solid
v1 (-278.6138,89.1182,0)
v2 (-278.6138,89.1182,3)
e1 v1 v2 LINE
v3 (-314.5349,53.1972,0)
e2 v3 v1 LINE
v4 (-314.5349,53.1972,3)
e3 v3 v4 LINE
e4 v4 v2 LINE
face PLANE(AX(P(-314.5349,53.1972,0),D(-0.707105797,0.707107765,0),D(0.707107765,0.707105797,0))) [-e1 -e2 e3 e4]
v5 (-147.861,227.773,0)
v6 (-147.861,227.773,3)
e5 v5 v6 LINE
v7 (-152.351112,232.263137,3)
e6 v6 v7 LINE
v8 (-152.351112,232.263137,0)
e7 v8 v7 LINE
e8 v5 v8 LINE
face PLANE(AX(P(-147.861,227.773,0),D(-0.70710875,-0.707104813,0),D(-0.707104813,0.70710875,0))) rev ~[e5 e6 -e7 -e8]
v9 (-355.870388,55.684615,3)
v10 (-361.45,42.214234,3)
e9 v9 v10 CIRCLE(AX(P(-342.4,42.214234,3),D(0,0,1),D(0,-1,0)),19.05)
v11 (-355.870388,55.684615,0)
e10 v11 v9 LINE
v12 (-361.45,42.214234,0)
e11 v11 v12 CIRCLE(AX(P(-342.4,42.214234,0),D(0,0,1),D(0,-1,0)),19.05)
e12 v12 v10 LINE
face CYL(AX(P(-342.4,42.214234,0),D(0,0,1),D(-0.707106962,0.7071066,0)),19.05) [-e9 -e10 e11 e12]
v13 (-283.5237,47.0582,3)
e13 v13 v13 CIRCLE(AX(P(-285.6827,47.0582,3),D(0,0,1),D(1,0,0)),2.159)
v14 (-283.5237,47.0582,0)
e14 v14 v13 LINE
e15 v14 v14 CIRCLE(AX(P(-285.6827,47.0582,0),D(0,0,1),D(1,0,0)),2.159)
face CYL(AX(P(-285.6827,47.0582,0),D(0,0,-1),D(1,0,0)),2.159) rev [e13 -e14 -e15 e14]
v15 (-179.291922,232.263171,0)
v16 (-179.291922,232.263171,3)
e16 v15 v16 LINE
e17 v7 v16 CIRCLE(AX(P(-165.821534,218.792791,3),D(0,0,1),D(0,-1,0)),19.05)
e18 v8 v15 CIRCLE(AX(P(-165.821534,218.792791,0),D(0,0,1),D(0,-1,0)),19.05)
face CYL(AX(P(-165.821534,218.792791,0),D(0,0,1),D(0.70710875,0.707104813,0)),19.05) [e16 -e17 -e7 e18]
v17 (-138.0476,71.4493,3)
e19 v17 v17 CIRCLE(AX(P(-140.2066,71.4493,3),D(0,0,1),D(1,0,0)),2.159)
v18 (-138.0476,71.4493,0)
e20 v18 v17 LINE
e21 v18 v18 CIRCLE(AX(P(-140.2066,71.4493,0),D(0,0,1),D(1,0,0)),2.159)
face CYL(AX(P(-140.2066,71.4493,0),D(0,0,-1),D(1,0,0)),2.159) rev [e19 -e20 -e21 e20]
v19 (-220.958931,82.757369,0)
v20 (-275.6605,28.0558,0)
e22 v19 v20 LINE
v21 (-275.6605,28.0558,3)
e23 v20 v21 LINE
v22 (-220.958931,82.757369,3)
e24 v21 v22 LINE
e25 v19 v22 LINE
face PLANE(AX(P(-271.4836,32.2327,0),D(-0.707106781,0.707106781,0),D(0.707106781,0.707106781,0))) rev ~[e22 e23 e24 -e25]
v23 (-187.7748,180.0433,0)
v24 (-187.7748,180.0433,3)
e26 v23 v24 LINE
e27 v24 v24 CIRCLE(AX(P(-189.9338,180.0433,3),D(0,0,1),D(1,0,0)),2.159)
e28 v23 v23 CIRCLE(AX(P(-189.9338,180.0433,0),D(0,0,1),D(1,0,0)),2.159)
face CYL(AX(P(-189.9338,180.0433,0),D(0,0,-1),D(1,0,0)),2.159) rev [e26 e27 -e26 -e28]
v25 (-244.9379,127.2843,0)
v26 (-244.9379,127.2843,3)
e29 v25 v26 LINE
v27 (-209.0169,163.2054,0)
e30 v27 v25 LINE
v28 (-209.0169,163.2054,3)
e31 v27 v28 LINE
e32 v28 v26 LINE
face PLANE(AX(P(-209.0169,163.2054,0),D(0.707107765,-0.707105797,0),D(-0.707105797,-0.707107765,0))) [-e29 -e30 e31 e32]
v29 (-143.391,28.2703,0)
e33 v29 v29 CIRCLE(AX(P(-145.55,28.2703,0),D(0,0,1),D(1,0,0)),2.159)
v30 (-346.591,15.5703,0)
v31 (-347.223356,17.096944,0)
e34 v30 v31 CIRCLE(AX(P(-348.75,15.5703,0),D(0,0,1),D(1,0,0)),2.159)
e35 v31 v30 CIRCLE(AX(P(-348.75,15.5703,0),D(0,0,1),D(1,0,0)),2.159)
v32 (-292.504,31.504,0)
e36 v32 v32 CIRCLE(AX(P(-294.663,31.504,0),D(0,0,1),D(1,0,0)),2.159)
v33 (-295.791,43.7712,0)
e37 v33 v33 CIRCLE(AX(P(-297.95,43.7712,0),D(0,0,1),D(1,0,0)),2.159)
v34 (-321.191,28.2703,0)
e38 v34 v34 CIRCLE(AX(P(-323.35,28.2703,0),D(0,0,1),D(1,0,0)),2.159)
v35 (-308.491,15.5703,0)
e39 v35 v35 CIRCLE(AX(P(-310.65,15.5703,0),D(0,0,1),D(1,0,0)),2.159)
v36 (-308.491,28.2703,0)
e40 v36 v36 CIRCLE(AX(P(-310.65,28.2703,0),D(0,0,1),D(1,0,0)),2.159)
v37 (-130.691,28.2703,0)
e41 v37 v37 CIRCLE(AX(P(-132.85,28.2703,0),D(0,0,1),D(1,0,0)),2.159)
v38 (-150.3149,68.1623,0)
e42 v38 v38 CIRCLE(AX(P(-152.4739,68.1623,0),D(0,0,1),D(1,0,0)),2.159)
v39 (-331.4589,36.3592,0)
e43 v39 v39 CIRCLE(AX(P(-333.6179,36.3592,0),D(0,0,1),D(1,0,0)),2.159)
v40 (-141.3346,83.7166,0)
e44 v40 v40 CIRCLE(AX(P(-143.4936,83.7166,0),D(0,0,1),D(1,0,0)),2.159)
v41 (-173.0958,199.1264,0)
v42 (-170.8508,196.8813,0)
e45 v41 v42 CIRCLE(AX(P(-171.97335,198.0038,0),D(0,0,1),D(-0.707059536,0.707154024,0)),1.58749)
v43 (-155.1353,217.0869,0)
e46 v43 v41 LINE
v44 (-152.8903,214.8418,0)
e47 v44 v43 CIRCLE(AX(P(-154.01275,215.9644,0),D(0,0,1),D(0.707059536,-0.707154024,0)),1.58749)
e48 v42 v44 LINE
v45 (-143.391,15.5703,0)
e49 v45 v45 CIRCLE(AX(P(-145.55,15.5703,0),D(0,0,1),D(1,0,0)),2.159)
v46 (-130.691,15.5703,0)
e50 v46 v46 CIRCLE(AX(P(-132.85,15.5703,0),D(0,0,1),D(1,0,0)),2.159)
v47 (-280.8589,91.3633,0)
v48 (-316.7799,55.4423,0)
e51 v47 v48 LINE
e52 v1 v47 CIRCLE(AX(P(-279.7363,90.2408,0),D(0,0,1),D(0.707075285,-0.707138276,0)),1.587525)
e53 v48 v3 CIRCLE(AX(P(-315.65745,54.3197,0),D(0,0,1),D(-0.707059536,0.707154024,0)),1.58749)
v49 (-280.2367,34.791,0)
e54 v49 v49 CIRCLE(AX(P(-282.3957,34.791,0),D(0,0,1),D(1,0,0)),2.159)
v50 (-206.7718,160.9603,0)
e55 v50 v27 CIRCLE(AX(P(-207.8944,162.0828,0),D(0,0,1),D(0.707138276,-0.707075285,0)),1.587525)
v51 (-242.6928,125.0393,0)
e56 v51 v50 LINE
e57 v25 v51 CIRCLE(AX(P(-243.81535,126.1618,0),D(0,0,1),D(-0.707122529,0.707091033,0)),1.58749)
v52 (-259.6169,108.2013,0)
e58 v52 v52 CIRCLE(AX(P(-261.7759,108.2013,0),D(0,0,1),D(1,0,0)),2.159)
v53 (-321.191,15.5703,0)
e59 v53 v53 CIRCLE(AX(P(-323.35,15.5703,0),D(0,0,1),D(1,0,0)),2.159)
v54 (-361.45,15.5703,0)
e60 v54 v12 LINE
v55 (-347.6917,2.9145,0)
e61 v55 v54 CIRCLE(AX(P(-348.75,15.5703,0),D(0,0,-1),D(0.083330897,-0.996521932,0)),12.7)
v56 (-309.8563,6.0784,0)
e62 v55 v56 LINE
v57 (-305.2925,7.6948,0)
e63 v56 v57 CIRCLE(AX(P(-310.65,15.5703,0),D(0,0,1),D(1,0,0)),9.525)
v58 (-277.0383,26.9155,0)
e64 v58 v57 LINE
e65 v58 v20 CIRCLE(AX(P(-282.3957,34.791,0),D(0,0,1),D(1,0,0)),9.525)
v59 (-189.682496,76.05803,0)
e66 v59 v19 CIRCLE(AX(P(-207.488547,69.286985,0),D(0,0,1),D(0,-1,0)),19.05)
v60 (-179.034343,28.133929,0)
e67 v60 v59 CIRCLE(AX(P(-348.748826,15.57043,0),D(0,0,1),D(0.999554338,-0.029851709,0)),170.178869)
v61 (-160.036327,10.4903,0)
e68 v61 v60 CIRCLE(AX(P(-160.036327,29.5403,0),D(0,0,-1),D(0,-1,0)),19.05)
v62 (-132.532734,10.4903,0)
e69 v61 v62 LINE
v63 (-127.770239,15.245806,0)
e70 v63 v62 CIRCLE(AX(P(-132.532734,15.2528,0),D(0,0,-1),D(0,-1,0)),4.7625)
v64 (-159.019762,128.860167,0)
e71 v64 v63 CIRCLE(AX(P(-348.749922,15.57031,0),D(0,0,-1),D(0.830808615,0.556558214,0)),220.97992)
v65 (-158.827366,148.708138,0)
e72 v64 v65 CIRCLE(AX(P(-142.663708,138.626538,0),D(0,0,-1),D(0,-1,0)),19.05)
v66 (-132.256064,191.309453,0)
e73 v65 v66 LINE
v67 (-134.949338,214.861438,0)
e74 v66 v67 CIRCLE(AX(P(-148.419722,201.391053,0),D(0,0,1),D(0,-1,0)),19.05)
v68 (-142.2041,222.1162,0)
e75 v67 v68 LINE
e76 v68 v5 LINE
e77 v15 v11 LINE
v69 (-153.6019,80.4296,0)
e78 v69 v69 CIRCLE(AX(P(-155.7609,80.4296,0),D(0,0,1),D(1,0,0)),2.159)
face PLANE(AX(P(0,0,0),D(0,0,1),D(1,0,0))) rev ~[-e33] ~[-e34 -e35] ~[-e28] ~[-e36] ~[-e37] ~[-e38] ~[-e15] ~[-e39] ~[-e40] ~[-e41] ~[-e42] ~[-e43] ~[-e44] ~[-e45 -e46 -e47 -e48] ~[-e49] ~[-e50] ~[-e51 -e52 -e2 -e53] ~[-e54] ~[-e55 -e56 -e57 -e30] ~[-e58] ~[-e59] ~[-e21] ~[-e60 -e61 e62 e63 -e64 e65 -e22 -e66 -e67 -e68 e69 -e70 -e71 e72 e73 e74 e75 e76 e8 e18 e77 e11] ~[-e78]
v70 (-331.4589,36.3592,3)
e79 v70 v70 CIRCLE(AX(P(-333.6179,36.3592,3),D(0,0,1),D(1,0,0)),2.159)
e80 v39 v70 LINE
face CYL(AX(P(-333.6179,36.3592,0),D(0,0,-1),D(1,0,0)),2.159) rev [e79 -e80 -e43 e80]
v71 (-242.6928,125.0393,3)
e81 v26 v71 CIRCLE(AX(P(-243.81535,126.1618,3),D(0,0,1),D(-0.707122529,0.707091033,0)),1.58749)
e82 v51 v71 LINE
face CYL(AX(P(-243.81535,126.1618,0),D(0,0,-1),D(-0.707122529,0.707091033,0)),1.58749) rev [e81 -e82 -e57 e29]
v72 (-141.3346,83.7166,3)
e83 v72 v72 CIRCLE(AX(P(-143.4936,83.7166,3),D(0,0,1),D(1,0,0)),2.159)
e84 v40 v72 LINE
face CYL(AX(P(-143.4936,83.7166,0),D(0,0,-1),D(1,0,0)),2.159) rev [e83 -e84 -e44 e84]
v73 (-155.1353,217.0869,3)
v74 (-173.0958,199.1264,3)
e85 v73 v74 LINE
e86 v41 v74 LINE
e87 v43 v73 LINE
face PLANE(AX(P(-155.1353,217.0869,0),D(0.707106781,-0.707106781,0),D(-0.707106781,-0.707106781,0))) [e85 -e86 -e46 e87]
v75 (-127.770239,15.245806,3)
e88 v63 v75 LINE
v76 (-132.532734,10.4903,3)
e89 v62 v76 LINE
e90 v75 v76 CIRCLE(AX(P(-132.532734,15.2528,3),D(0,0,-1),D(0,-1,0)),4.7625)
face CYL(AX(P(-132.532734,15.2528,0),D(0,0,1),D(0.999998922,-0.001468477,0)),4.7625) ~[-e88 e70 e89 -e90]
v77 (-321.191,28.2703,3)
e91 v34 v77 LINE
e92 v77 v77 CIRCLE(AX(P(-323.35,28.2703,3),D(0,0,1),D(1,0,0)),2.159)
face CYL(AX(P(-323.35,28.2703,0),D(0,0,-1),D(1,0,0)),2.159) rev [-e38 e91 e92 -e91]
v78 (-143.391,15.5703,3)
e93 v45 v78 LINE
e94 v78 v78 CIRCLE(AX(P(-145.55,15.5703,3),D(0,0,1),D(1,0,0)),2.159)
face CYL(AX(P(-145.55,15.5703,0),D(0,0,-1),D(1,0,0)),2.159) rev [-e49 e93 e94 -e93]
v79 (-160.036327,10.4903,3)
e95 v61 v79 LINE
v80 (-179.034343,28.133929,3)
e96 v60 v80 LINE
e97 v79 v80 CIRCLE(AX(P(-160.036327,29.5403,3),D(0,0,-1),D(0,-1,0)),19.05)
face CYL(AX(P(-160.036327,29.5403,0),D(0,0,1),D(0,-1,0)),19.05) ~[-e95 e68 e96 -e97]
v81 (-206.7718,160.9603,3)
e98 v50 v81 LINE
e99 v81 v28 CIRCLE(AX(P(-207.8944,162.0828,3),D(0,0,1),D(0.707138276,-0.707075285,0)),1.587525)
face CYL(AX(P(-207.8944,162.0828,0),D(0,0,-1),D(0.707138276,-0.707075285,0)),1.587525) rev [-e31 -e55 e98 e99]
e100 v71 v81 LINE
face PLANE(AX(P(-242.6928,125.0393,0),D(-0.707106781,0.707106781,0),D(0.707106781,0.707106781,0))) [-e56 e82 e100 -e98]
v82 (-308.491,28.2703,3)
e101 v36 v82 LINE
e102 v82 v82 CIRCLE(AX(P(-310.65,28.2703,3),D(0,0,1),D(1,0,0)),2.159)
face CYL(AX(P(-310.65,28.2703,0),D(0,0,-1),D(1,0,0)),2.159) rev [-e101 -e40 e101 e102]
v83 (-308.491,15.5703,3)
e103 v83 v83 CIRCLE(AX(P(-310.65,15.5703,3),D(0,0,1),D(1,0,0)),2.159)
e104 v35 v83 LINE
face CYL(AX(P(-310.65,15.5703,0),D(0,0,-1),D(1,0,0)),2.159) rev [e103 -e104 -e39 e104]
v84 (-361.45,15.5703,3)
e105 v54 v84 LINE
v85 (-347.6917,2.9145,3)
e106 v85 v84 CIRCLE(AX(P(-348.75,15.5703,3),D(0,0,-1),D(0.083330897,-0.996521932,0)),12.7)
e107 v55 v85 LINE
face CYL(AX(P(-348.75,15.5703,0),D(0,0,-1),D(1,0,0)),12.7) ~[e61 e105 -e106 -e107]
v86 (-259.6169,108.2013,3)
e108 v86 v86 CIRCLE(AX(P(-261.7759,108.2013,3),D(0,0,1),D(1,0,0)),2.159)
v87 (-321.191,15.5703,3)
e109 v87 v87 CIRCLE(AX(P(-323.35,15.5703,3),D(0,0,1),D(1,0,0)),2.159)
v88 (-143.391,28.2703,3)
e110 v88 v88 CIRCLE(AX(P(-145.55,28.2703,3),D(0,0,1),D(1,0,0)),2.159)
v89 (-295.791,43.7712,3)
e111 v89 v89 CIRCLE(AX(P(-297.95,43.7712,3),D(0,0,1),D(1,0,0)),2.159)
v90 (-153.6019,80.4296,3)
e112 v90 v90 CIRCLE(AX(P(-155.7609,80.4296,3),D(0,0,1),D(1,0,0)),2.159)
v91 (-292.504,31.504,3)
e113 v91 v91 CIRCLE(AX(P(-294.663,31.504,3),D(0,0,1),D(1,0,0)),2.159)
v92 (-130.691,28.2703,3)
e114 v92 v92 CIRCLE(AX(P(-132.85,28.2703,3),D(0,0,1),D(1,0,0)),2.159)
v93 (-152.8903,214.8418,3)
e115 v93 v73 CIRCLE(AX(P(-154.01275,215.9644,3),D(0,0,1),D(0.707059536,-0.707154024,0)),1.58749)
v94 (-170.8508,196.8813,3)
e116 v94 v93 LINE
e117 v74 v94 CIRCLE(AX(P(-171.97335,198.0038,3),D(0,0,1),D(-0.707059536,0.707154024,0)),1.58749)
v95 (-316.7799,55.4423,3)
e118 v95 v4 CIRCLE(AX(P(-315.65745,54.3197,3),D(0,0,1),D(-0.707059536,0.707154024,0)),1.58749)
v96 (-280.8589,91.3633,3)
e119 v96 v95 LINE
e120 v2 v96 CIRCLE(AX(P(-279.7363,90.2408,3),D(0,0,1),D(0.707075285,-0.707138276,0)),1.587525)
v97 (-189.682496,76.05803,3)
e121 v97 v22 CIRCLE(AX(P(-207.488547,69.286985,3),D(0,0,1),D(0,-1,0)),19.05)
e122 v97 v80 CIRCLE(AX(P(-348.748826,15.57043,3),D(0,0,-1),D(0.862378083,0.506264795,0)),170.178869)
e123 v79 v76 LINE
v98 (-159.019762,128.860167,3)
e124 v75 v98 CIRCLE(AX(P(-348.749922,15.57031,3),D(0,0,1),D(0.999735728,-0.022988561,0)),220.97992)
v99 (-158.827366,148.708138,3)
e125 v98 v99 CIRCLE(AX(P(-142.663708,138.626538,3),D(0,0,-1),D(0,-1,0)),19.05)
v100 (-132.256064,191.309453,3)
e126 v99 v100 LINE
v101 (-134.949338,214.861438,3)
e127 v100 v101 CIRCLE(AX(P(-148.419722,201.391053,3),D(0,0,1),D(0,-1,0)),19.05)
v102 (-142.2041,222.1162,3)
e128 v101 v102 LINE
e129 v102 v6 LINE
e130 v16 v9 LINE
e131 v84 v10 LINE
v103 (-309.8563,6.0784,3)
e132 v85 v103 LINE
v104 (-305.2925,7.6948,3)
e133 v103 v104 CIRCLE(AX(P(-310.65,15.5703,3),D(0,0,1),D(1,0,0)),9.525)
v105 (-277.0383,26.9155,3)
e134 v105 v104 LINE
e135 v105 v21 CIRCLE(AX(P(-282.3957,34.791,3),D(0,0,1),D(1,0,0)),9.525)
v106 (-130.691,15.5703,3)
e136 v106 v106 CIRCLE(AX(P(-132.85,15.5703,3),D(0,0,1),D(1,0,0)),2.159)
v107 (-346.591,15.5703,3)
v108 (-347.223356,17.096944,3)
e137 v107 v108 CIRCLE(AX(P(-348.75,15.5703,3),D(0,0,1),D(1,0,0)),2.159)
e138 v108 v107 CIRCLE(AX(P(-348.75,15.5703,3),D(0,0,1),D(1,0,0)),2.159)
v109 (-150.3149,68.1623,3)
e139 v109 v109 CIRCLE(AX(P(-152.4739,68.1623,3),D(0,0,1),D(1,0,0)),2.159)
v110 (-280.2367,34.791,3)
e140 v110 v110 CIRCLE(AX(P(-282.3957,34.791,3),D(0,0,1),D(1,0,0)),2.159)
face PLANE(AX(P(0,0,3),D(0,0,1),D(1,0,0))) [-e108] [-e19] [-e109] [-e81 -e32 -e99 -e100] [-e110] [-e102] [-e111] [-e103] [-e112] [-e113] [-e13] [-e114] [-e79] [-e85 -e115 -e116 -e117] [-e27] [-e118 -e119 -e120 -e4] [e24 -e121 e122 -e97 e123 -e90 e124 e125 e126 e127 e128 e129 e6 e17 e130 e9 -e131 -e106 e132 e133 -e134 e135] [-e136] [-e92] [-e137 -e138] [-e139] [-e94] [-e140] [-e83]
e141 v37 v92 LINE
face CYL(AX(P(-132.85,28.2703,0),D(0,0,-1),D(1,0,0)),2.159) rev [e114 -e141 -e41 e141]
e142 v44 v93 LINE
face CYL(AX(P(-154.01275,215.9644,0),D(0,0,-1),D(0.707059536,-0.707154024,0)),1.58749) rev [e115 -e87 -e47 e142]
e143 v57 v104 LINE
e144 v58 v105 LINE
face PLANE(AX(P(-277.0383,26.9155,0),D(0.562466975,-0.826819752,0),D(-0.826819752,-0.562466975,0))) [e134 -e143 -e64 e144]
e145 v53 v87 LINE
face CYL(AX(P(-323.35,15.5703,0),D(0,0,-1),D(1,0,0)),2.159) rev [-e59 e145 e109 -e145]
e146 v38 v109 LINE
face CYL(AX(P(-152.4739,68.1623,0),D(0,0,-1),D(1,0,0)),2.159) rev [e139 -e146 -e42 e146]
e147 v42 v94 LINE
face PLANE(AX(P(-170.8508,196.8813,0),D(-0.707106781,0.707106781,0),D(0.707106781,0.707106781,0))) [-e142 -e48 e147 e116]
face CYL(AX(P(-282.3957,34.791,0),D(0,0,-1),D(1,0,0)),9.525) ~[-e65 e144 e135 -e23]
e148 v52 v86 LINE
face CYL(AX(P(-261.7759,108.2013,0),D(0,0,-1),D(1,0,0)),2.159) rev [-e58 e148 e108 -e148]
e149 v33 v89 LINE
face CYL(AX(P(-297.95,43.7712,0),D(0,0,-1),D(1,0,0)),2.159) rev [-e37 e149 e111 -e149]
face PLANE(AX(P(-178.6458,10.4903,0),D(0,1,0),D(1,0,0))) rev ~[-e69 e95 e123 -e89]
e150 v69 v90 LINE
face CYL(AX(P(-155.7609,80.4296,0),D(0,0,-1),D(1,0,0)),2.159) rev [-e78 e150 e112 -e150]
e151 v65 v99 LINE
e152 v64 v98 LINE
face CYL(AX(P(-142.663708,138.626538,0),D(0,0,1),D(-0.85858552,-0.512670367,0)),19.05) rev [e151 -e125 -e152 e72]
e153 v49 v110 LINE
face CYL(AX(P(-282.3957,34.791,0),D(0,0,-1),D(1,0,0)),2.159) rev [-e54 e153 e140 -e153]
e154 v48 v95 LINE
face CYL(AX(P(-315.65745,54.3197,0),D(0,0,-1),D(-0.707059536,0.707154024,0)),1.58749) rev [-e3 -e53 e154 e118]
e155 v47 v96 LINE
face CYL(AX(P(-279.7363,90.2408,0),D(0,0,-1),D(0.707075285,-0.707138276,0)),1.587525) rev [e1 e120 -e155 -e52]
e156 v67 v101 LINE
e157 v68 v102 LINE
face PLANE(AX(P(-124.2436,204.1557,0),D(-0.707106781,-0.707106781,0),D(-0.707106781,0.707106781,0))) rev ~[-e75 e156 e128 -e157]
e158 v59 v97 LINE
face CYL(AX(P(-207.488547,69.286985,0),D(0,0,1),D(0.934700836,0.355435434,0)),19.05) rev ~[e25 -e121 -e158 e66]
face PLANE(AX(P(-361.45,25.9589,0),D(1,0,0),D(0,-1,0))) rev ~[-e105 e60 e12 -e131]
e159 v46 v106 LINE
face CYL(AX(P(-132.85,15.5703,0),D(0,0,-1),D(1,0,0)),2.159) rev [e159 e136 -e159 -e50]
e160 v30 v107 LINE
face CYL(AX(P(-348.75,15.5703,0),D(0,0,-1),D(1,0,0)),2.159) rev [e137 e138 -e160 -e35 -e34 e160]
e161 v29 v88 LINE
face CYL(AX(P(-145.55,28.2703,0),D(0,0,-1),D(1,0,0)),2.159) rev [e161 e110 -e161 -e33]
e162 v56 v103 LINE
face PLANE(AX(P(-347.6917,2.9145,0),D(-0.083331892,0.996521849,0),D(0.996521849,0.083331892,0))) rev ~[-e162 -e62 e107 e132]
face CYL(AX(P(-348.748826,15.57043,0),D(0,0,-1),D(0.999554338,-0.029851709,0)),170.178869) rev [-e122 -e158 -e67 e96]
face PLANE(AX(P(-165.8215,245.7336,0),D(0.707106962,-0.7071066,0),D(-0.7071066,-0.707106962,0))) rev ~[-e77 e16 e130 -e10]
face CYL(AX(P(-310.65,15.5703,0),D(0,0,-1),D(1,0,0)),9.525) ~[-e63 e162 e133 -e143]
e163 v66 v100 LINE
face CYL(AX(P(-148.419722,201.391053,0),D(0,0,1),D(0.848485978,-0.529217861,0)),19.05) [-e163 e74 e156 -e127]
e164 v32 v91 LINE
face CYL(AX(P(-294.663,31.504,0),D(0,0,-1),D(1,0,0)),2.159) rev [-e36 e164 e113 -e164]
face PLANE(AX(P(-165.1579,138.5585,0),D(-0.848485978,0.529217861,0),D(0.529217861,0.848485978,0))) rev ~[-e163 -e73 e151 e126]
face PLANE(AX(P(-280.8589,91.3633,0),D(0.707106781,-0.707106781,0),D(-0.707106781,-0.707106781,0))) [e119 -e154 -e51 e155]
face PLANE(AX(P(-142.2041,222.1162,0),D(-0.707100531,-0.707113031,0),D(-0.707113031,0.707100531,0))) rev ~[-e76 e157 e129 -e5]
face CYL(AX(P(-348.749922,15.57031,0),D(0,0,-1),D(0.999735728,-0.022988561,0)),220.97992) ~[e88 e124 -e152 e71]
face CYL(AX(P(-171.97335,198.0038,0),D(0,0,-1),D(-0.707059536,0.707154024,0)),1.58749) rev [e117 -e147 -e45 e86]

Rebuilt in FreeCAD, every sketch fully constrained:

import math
import FreeCAD as App
import Part
import Sketcher
Q = App.Units.Quantity


def edges_at(feature, points):
    """Names of the edges that pass closest to the given points."""
    edges = feature.Shape.Edges
    near = lambda p: min(range(len(edges)), key=lambda i: edges[i].distToShape(Part.Vertex(*p))[0])
    return sorted({f"Edge{near(p) + 1}" for p in points})

doc = App.newDocument("Part")
body = doc.addObject("PartDesign::Body", "Body")

# Sketch on XY plane
sketch1 = body.newObject("Sketcher::SketchObject", "Sketch")
sketch1.AttachmentSupport = (doc.getObject("XY_Plane"), [""])
sketch1.MapMode = "FlatFace"
sketch1.addGeometry(Part.LineSegment(App.Vector(-347.6917, 2.9145, 0), App.Vector(-309.8563, 6.0784, 0)), False)
sketch1.addGeometry(Part.ArcOfCircle(Part.Circle(App.Vector(-310.65, 15.5703, 0), App.Vector(0, 0, 1), 9.525), math.radians(-85.220123), math.radians(-55.773554)), False)
sketch1.addGeometry(Part.LineSegment(App.Vector(-305.2925, 7.6948, 0), App.Vector(-277.0383, 26.9155, 0)), False)
sketch1.addGeometry(Part.ArcOfCircle(Part.Circle(App.Vector(-282.3957, 34.791, 0), App.Vector(0, 0, 1), 9.525), math.radians(-55.774051), math.radians(-45)), False)
sketch1.addGeometry(Part.LineSegment(App.Vector(-275.6605, 28.0558, 0), App.Vector(-201.9903, 101.726, 0)), False)
sketch1.addGeometry(Part.ArcOfCircle(Part.Circle(App.Vector(-348.748826, 15.57043, 0), App.Vector(0, 0, 1), 170.178869), math.radians(-1.710631), math.radians(30.415348)), False)
sketch1.addGeometry(Part.LineSegment(App.Vector(-178.6458, 10.4903, 0), App.Vector(-127.8284, 10.4903, 0)), False)
sketch1.addGeometry(Part.ArcOfCircle(Part.Circle(App.Vector(-348.75, 15.5703, 0), App.Vector(0, 0, 1), 220.979999), math.radians(-1.31726), math.radians(33.818099)), False)
sketch1.addGeometry(Part.LineSegment(App.Vector(-165.1579, 138.5585, 0), App.Vector(-124.2436, 204.1557, 0)), False)
sketch1.addGeometry(Part.LineSegment(App.Vector(-124.2436, 204.1557, 0), App.Vector(-142.2041, 222.1162, 0)), False)
sketch1.addGeometry(Part.LineSegment(App.Vector(-142.2041, 222.1162, 0), App.Vector(-147.861, 227.773, 0)), False)
sketch1.addGeometry(Part.LineSegment(App.Vector(-147.861, 227.773, 0), App.Vector(-165.8215, 245.7336, 0)), False)
sketch1.addGeometry(Part.LineSegment(App.Vector(-165.8215, 245.7336, 0), App.Vector(-361.45, 50.105, 0)), False)
sketch1.addGeometry(Part.LineSegment(App.Vector(-361.45, 50.105, 0), App.Vector(-361.45, 15.5703, 0)), False)
sketch1.addGeometry(Part.ArcOfCircle(Part.Circle(App.Vector(-348.75, 15.5703, 0), App.Vector(0, 0, 1), 12.7), math.radians(180), math.radians(274.780052)), False)
sketch1.addGeometry(Part.Circle(App.Vector(-294.663, 31.504, 0), App.Vector(0, 0, 1), 2.159), False)
sketch1.addGeometry(Part.Circle(App.Vector(-348.75, 15.5703, 0), App.Vector(0, 0, 1), 2.159), False)
sketch1.addGeometry(Part.LineSegment(App.Vector(-173.0958, 199.1264, 0), App.Vector(-155.1353, 217.0869, 0)), False)
sketch1.addGeometry(Part.ArcOfCircle(Part.Circle(App.Vector(-154.0128, 215.9644, 0), App.Vector(0, 0, 1), 1.587525), math.radians(-45.002552), math.radians(135)), False)
sketch1.addGeometry(Part.LineSegment(App.Vector(-152.8903, 214.8418, 0), App.Vector(-170.8508, 196.8813, 0)), False)
sketch1.addGeometry(Part.ArcOfCircle(Part.Circle(App.Vector(-171.9733, 198.0038, 0), App.Vector(0, 0, 1), 1.587525), math.radians(134.997448), math.radians(315)), False)
sketch1.addGeometry(Part.Circle(App.Vector(-333.6179, 36.3592, 0), App.Vector(0, 0, 1), 2.159), False)
sketch1.addGeometry(Part.LineSegment(App.Vector(-278.6138, 89.1182, 0), App.Vector(-314.5349, 53.1972, 0)), False)
sketch1.addGeometry(Part.ArcOfCircle(Part.Circle(App.Vector(-315.6574, 54.3197, 0), App.Vector(0, 0, 1), 1.587525), math.radians(134.997448), math.radians(315)), False)
sketch1.addGeometry(Part.LineSegment(App.Vector(-316.7799, 55.4423, 0), App.Vector(-280.8589, 91.3633, 0)), False)
sketch1.addGeometry(Part.ArcOfCircle(Part.Circle(App.Vector(-279.7364, 90.2408, 0), App.Vector(0, 0, 1), 1.587596), math.radians(-45), math.radians(135)), False)
sketch1.addGeometry(Part.Circle(App.Vector(-261.7759, 108.2013, 0), App.Vector(0, 0, 1), 2.159), False)
sketch1.addGeometry(Part.LineSegment(App.Vector(-206.7718, 160.9603, 0), App.Vector(-242.6928, 125.0393, 0)), False)
sketch1.addGeometry(Part.ArcOfCircle(Part.Circle(App.Vector(-243.8154, 126.1618, 0), App.Vector(0, 0, 1), 1.587455), math.radians(135), math.radians(315.002552)), False)
sketch1.addGeometry(Part.LineSegment(App.Vector(-244.9379, 127.2843, 0), App.Vector(-209.0169, 163.2054, 0)), False)
sketch1.addGeometry(Part.ArcOfCircle(Part.Circle(App.Vector(-207.8943, 162.0828, 0), App.Vector(0, 0, 1), 1.587455), math.radians(-45), math.radians(135)), False)
sketch1.addGeometry(Part.Circle(App.Vector(-189.9338, 180.0433, 0), App.Vector(0, 0, 1), 2.159), False)
sketch1.addGeometry(Part.Circle(App.Vector(-297.95, 43.7712, 0), App.Vector(0, 0, 1), 2.159), False)
sketch1.addGeometry(Part.Circle(App.Vector(-285.6827, 47.0582, 0), App.Vector(0, 0, 1), 2.159), False)
sketch1.addGeometry(Part.Circle(App.Vector(-152.4739, 68.1623, 0), App.Vector(0, 0, 1), 2.159), False)
sketch1.addGeometry(Part.Circle(App.Vector(-140.2066, 71.4493, 0), App.Vector(0, 0, 1), 2.159), False)
sketch1.addGeometry(Part.Circle(App.Vector(-155.7609, 80.4296, 0), App.Vector(0, 0, 1), 2.159), False)
sketch1.addGeometry(Part.Circle(App.Vector(-143.4936, 83.7166, 0), App.Vector(0, 0, 1), 2.159), False)
sketch1.addGeometry(Part.Circle(App.Vector(-323.35, 15.5703, 0), App.Vector(0, 0, 1), 2.159), False)
sketch1.addGeometry(Part.Circle(App.Vector(-323.35, 28.2703, 0), App.Vector(0, 0, 1), 2.159), False)
sketch1.addGeometry(Part.Circle(App.Vector(-310.65, 28.2703, 0), App.Vector(0, 0, 1), 2.159), False)
sketch1.addGeometry(Part.Circle(App.Vector(-282.3957, 34.791, 0), App.Vector(0, 0, 1), 2.159), False)
sketch1.addGeometry(Part.Circle(App.Vector(-310.65, 15.5703, 0), App.Vector(0, 0, 1), 2.159), False)
sketch1.addGeometry(Part.Circle(App.Vector(-132.85, 28.2703, 0), App.Vector(0, 0, 1), 2.159), False)
sketch1.addGeometry(Part.Circle(App.Vector(-145.55, 15.5703, 0), App.Vector(0, 0, 1), 2.159), False)
sketch1.addGeometry(Part.Circle(App.Vector(-132.85, 15.5703, 0), App.Vector(0, 0, 1), 2.159), False)
sketch1.addGeometry(Part.Circle(App.Vector(-145.55, 28.2703, 0), App.Vector(0, 0, 1), 2.159), False)
sketch1.addConstraint(Sketcher.Constraint("Tangent", 0, 2, 1, 1))
sketch1.addConstraint(Sketcher.Constraint("Tangent", 1, 2, 2, 1))
sketch1.addConstraint(Sketcher.Constraint("Tangent", 2, 2, 3, 1))
sketch1.addConstraint(Sketcher.Constraint("Tangent", 3, 2, 4, 1))
sketch1.addConstraint(Sketcher.Constraint("Coincident", 4, 2, 5, 2))
sketch1.addConstraint(Sketcher.Constraint("Coincident", 5, 1, 6, 1))
sketch1.addConstraint(Sketcher.Constraint("Coincident", 6, 2, 7, 1))
sketch1.addConstraint(Sketcher.Constraint("Coincident", 7, 2, 8, 1))
sketch1.addConstraint(Sketcher.Constraint("Coincident", 8, 2, 9, 1))
sketch1.addConstraint(Sketcher.Constraint("Coincident", 9, 2, 10, 1))
sketch1.addConstraint(Sketcher.Constraint("Coincident", 10, 2, 11, 1))
sketch1.addConstraint(Sketcher.Constraint("Coincident", 11, 2, 12, 1))
sketch1.addConstraint(Sketcher.Constraint("Coincident", 12, 2, 13, 1))
sketch1.addConstraint(Sketcher.Constraint("Tangent", 13, 2, 14, 1))
sketch1.addConstraint(Sketcher.Constraint("Tangent", 14, 2, 0, 1))
sketch1.addConstraint(Sketcher.Constraint("Tangent", 17, 2, 18, 2))
sketch1.addConstraint(Sketcher.Constraint("Tangent", 18, 1, 19, 1))
sketch1.addConstraint(Sketcher.Constraint("Tangent", 19, 2, 20, 2))
sketch1.addConstraint(Sketcher.Constraint("Tangent", 20, 1, 17, 1))
sketch1.addConstraint(Sketcher.Constraint("Tangent", 22, 2, 23, 2))
sketch1.addConstraint(Sketcher.Constraint("Tangent", 23, 1, 24, 1))
sketch1.addConstraint(Sketcher.Constraint("Tangent", 24, 2, 25, 2))
sketch1.addConstraint(Sketcher.Constraint("Tangent", 25, 1, 22, 1))
sketch1.addConstraint(Sketcher.Constraint("Tangent", 27, 2, 28, 2))
sketch1.addConstraint(Sketcher.Constraint("Tangent", 28, 1, 29, 1))
sketch1.addConstraint(Sketcher.Constraint("Tangent", 29, 2, 30, 2))
sketch1.addConstraint(Sketcher.Constraint("Tangent", 30, 1, 27, 1))
sketch1.addConstraint(Sketcher.Constraint("Horizontal", 6))
sketch1.addConstraint(Sketcher.Constraint("Vertical", 13))
sketch1.addConstraint(Sketcher.Constraint("Coincident", 14, 3, 7, 3))
sketch1.addConstraint(Sketcher.Constraint("Coincident", 16, 3, 7, 3))
sketch1.addConstraint(Sketcher.Constraint("Coincident", 41, 3, 3, 3))
sketch1.addConstraint(Sketcher.Constraint("Coincident", 42, 3, 1, 3))
sketch1.addConstraint(Sketcher.Constraint("Equal", 1, 3))
sketch1.addConstraint(Sketcher.Constraint("Equal", 15, 16))
sketch1.addConstraint(Sketcher.Constraint("Equal", 18, 20))
sketch1.addConstraint(Sketcher.Constraint("Equal", 16, 21))
sketch1.addConstraint(Sketcher.Constraint("Equal", 20, 23))
sketch1.addConstraint(Sketcher.Constraint("Equal", 23, 25))
sketch1.addConstraint(Sketcher.Constraint("Equal", 21, 26))
sketch1.addConstraint(Sketcher.Constraint("Equal", 25, 28))
sketch1.addConstraint(Sketcher.Constraint("Equal", 28, 30))
sketch1.addConstraint(Sketcher.Constraint("Equal", 26, 31))
sketch1.addConstraint(Sketcher.Constraint("Equal", 31, 32))
sketch1.addConstraint(Sketcher.Constraint("Equal", 32, 33))
sketch1.addConstraint(Sketcher.Constraint("Equal", 33, 34))
sketch1.addConstraint(Sketcher.Constraint("Equal", 34, 35))
sketch1.addConstraint(Sketcher.Constraint("Equal", 35, 36))
sketch1.addConstraint(Sketcher.Constraint("Equal", 36, 37))
sketch1.addConstraint(Sketcher.Constraint("Equal", 37, 38))
sketch1.addConstraint(Sketcher.Constraint("Equal", 38, 39))
sketch1.addConstraint(Sketcher.Constraint("Equal", 39, 40))
sketch1.addConstraint(Sketcher.Constraint("Equal", 40, 41))
sketch1.addConstraint(Sketcher.Constraint("Equal", 41, 42))
sketch1.addConstraint(Sketcher.Constraint("Equal", 42, 43))
sketch1.addConstraint(Sketcher.Constraint("Equal", 43, 44))
sketch1.addConstraint(Sketcher.Constraint("Equal", 44, 45))
sketch1.addConstraint(Sketcher.Constraint("Equal", 45, 46))
sketch1.addConstraint(Sketcher.Constraint("Perpendicular", 4, 9))
sketch1.addConstraint(Sketcher.Constraint("Parallel", 9, 10))
sketch1.addConstraint(Sketcher.Constraint("Parallel", 10, 11))
sketch1.addConstraint(Sketcher.Constraint("Perpendicular", 11, 12))
sketch1.addConstraint(Sketcher.Constraint("Parallel", 12, 17))
sketch1.addConstraint(Sketcher.Constraint("Parallel", 19, 22))
sketch1.addConstraint(Sketcher.Constraint("Parallel", 24, 27))
sketch1.addConstraint(Sketcher.Constraint("Horizontal", 1, 3, 5, 3))
sketch1.addConstraint(Sketcher.Constraint("Horizontal", 5, 3, 7, 3))
sketch1.addConstraint(Sketcher.Constraint("Horizontal", 16, 3, 38, 3))
sketch1.addConstraint(Sketcher.Constraint("Horizontal", 39, 3, 40, 3))
sketch1.addConstraint(Sketcher.Constraint("Horizontal", 40, 3, 43, 3))
sketch1.addConstraint(Sketcher.Constraint("Horizontal", 42, 3, 44, 3))
sketch1.addConstraint(Sketcher.Constraint("Horizontal", 44, 3, 45, 3))
sketch1.addConstraint(Sketcher.Constraint("Horizontal", 43, 3, 46, 3))
sketch1.addConstraint(Sketcher.Constraint("Vertical", 38, 3, 39, 3))
sketch1.addConstraint(Sketcher.Constraint("Vertical", 1, 3, 40, 3))
sketch1.addConstraint(Sketcher.Constraint("Vertical", 43, 3, 45, 3))
sketch1.addConstraint(Sketcher.Constraint("Vertical", 44, 3, 46, 3))
sketch1.addConstraint(Sketcher.Constraint("Equal", 9, 11))
sketch1.addConstraint(Sketcher.Constraint("Equal", 11, 17))
sketch1.addConstraint(Sketcher.Constraint("Equal", 24, 27))
sketch1.addConstraint(Sketcher.Constraint("Radius", 7, Q("8.7 in")))
sketch1.addConstraint(Sketcher.Constraint("Radius", 14, Q("0.5 in")))
sketch1.addConstraint(Sketcher.Constraint("Diameter", 15, Q("0.17 in")))
sketch1.addConstraint(Sketcher.Constraint("Distance", 9, Q("1 in")))
sketch1.addConstraint(Sketcher.Constraint("Distance", 22, Q("2 in")))
sketch1.addConstraint(Sketcher.Constraint("Angle", 4, Q("45 deg")))
sketch1.addConstraint(Sketcher.Constraint("Radius", 1, Q("0.375 in")))
sketch1.addConstraint(Sketcher.Constraint("Radius", 18, Q("0.0625 in")))
sketch1.addConstraint(Sketcher.Constraint("DistanceX", 7, 3, 38, 3, Q("1 in")))
sketch1.addConstraint(Sketcher.Constraint("DistanceX", 1, 3, 32, 3, Q("0.5 in")))
sketch1.addConstraint(Sketcher.Constraint("DistanceX", 38, 3, 1, 3, Q("0.5 in")))
sketch1.addConstraint(Sketcher.Constraint("DistanceY", 38, 3, 39, 3, Q("0.5 in")))
sketch1.addConstraint(Sketcher.Constraint("DistanceX", 44, 3, 43, 3, Q("0.5 in")))
sketch1.addConstraint(Sketcher.Constraint("DistanceY", 5, 1, 44, 3, Q("0.2 in")))
sketch1.addConstraint(Sketcher.Constraint("Distance", 10, Q("8 mm")))
sketch1.addConstraint(Sketcher.Constraint("Radius", 5, Q("170.1789 mm")))
sketch1.addConstraint(Sketcher.Constraint("DistanceY", -1, 1, 1, 3, Q("0.613 in")))
sketch1.addConstraint(Sketcher.Constraint("DistanceY", -1, 1, 28, 3, Q("4.967 in")))
sketch1.addConstraint(Sketcher.Constraint("DistanceX", 29, 2, -1, 1, Q("8.229 in")))
sketch1.addConstraint(Sketcher.Constraint("DistanceX", 36, 3, 43, 3, Q("0.902 in")))
sketch1.addConstraint(Sketcher.Constraint("DistanceY", 17, 2, 9, 2, Q("0.198 in")))
sketch1.addConstraint(Sketcher.Constraint("DistanceX", 18, 1, 10, 2, Q("0.198 in")))
sketch1.addConstraint(Sketcher.Constraint("DistanceX", 6, 1, 6, 2, Q("50.8174 mm")))
sketch1.addConstraint(Sketcher.Constraint("DistanceY", 13, 2, 13, 1, Q("34.5347 mm")))
sketch1.addConstraint(Sketcher.Constraint("DistanceX", 15, 3, -1, 1, Q("11.6009 in")))
sketch1.addConstraint(Sketcher.Constraint("DistanceX", 18, 3, -1, 1, Q("6.0635 in")))
sketch1.addConstraint(Sketcher.Constraint("DistanceY", -1, 1, 26, 3, Q("4.2599 in")))
sketch1.addConstraint(Sketcher.Constraint("DistanceX", 31, 3, -1, 1, Q("7.4777 in")))
sketch1.addConstraint(Sketcher.Constraint("DistanceX", 34, 3, -1, 1, Q("6.0029 in")))
sketch1.addConstraint(Sketcher.Constraint("DistanceX", 1, 2, -1, 1, Q("12.0194 in")))
sketch1.addConstraint(Sketcher.Constraint("DistanceX", 5, 1, -1, 1, Q("7.0333 in")))
sketch1.addConstraint(Sketcher.Constraint("DistanceY", -1, 1, 25, 1, Q("3.5086 in")))
sketch1.addConstraint(Sketcher.Constraint("DistanceY", 15, 3, 3, 3, Q("0.1294 in")))
sketch1.addConstraint(Sketcher.Constraint("DistanceY", 1, 3, 15, 3, Q("0.6273 in")))
sketch1.addConstraint(Sketcher.Constraint("DistanceX", 5, 3, 21, 3, Q("0.5957 in")))
sketch1.addConstraint(Sketcher.Constraint("DistanceX", 21, 3, 23, 3, Q("0.7071 in")))
sketch1.addConstraint(Sketcher.Constraint("DistanceY", 21, 3, 23, 3, Q("0.7071 in")))
sketch1.addConstraint(Sketcher.Constraint("DistanceX", 25, 3, 26, 3, Q("0.7071 in")))
sketch1.addConstraint(Sketcher.Constraint("DistanceY", 30, 3, 31, 3, Q("0.7071 in")))
sketch1.addConstraint(Sketcher.Constraint("DistanceY", 32, 3, 23, 3, Q("0.4153 in")))
sketch1.addConstraint(Sketcher.Constraint("DistanceX", 33, 3, 3, 3, Q("0.1294 in")))
sketch1.addConstraint(Sketcher.Constraint("DistanceY", 32, 3, 33, 3, Q("0.1294 in")))
sketch1.addConstraint(Sketcher.Constraint("DistanceY", 34, 3, 35, 3, Q("0.1294 in")))
sketch1.addConstraint(Sketcher.Constraint("DistanceX", 26, 3, 35, 3, Q("4.7862 in")))
sketch1.addConstraint(Sketcher.Constraint("DistanceX", 36, 3, 34, 3, Q("0.1294 in")))
sketch1.addConstraint(Sketcher.Constraint("DistanceY", 36, 3, 30, 3, Q("3.2147 in")))
sketch1.addConstraint(Sketcher.Constraint("DistanceX", 37, 3, 35, 3, Q("0.1294 in")))
sketch1.addConstraint(Sketcher.Constraint("DistanceY", 36, 3, 37, 3, Q("0.1294 in")))
sketch1.addConstraint(Sketcher.Constraint("DistanceY", 34, 3, 4, 2, Q("1.3214 in")))
sketch1.addConstraint(Sketcher.Constraint("DistanceX", 4, 2, 7, 2, Q("1.4501 in")))
pad1 = body.newObject("PartDesign::Pad", "Pad")
pad1.Profile = sketch1
pad1.Length = Q("0.1181102 in")
doc.recompute()

fillet = body.newObject("PartDesign::Fillet", "Fillet")
fillet.Base = (pad1, edges_at(pad1, [(-127.828, 10.49, 1.5)]))
fillet.Radius = Q("0.1875 in")
doc.recompute()

fillet2 = body.newObject("PartDesign::Fillet", "Fillet001")
fillet2.Base = (fillet, edges_at(fillet, [
    (-178.646, 10.49, 1.5),
    (-201.99, 101.726, 1.5),
    (-361.45, 50.105, 1.5),
    (-165.821, 245.734, 1.5),
    (-124.244, 204.156, 1.5),
    (-165.158, 138.559, 1.5),
]))
fillet2.Radius = Q("0.75 in")

doc.recompute()
